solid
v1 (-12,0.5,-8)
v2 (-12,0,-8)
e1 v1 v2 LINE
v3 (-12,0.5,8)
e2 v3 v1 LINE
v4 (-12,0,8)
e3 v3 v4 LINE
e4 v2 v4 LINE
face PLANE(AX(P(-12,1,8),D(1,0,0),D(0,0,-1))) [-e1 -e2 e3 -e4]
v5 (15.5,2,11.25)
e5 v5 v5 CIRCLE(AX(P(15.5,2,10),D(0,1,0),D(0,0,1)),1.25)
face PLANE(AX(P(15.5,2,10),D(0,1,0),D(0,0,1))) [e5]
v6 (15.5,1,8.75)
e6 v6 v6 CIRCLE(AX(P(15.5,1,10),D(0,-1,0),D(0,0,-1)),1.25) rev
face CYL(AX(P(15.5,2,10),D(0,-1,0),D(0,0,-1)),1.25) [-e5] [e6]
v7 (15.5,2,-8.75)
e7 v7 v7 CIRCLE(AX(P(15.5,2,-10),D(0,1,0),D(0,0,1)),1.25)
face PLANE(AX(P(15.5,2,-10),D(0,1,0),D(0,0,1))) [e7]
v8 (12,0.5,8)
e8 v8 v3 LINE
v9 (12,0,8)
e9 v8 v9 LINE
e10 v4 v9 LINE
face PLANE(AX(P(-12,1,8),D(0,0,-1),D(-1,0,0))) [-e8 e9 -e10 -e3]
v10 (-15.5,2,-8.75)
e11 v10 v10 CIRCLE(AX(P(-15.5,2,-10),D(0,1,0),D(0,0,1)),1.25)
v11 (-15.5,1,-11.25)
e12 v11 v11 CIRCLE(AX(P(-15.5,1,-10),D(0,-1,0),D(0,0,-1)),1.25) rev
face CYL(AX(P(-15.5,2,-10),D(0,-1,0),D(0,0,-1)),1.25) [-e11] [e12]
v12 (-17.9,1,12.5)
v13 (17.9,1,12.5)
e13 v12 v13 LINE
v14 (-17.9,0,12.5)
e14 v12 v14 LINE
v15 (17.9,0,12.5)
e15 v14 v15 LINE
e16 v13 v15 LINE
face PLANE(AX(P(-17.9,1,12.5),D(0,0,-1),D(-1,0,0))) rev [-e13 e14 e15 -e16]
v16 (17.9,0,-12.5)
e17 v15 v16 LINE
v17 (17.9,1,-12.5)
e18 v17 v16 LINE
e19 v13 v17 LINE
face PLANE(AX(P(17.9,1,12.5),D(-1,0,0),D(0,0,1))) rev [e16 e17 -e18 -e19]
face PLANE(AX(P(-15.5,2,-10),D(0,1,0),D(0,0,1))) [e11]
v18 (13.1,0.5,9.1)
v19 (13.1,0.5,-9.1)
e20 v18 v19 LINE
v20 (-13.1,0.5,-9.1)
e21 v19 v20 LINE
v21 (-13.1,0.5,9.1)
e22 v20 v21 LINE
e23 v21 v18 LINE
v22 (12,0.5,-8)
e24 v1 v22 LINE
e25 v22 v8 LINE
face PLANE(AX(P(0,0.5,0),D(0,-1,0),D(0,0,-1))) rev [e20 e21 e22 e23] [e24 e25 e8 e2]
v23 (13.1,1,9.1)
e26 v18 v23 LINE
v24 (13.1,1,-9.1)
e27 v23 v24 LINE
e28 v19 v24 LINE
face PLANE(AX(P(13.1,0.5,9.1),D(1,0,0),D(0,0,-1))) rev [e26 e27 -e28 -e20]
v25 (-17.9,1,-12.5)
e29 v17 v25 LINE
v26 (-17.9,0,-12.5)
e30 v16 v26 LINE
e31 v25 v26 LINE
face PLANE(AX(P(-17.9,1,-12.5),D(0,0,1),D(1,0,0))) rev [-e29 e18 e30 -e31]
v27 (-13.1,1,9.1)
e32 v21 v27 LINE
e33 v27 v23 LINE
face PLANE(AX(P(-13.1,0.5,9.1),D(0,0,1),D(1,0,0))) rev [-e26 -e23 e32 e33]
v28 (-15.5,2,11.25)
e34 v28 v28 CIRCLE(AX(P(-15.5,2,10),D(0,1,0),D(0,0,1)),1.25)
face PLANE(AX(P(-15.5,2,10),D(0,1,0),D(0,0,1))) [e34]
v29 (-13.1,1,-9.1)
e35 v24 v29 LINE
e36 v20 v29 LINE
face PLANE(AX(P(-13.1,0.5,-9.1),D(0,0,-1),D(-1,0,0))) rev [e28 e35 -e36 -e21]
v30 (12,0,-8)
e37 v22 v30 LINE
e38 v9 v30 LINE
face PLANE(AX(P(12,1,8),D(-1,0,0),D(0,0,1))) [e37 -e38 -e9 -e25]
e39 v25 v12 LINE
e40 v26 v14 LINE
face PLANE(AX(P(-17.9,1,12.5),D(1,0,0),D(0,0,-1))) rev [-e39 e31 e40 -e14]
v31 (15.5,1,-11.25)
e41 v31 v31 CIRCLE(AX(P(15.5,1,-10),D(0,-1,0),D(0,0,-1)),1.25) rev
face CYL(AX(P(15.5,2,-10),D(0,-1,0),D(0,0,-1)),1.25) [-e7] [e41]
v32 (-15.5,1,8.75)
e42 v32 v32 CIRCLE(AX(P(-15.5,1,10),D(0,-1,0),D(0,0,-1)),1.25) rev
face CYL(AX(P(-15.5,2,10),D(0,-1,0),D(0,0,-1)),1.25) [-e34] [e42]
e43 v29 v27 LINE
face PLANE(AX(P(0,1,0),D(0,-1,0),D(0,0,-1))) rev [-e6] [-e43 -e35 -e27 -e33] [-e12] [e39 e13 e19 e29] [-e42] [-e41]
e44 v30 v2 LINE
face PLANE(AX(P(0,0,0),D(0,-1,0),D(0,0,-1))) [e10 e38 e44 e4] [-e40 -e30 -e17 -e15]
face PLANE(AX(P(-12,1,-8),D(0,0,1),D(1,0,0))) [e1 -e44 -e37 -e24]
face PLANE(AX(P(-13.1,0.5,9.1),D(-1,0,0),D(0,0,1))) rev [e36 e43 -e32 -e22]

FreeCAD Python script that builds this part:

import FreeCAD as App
import Part
import Sketcher
from FreeCAD import Vector


def add_polygon(sketch, points):
    """Adds a closed chain of lines whose ends are joined by coincident constraints."""
    first, n = sketch.GeometryCount, len(points)
    for a, b in zip(points, points[1:] + points[:1]):
        sketch.addGeometry(Part.LineSegment(App.Vector(*a, 0), App.Vector(*b, 0)), False)
    for i in range(n):
        sketch.addConstraint(Sketcher.Constraint("Coincident", first + i, 2, first + (i + 1) % n, 1))

doc = App.newDocument("Part")
params = doc.addObject("Spreadsheet::Sheet", "Params")
for row, (alias, value) in enumerate([
    ("sketch1_width", "24 mm"),
    ("sketch1_height", "25 mm"),
    ("sketch1_height2", "16 mm"),
    ("sketch1_width2", "35.8 mm"),
    ("pad1_length", "1 mm"),
    ("sketch2_width", "26.2 mm"),
    ("sketch2_height", "18.2 mm"),
    ("pocket1_length", "0.5 mm"),
    ("sketch3_diameter", "2.5 mm"),
    ("pad2_length", "1 mm"),
], start=1):
    params.set(f"A{row}", alias)
    params.set(f"B{row}", "=" + value)
    params.setAlias(f"B{row}", alias)

body = doc.addObject("PartDesign::Body", "Body")

sketch1 = body.newObject("Sketcher::SketchObject", "Sketch")
sketch1.AttachmentSupport = (doc.getObject("XZ_Plane"), [""])
sketch1.MapMode = "FlatFace"
add_polygon(sketch1, [(-18, -12), (-18, 12), (18, 12), (18, -12)])
add_polygon(sketch1, [(12, 8), (-12, 8), (-12, -8), (12, -8)])
sketch1.addConstraint(Sketcher.Constraint("Vertical", 0))
sketch1.addConstraint(Sketcher.Constraint("Horizontal", 1))
sketch1.addConstraint(Sketcher.Constraint("Vertical", 2))
sketch1.addConstraint(Sketcher.Constraint("Horizontal", 3))
sketch1.addConstraint(Sketcher.Constraint("Horizontal", 4))
sketch1.addConstraint(Sketcher.Constraint("Vertical", 5))
sketch1.addConstraint(Sketcher.Constraint("Horizontal", 6))
sketch1.addConstraint(Sketcher.Constraint("Vertical", 7))
sketch1.addConstraint(Sketcher.Constraint("Symmetric", 0, 2, 2, 2, -1, 1))
sketch1.addConstraint(Sketcher.Constraint("Symmetric", 4, 2, 6, 2, -1, 1))
sketch1.addConstraint(Sketcher.Constraint("DistanceX", 4, 2, 4, 1, 24.0))
sketch1.addConstraint(Sketcher.Constraint("DistanceY", 0, 1, 0, 2, 25.0))
sketch1.addConstraint(Sketcher.Constraint("DistanceY", 5, 2, 5, 1, 16.0))
sketch1.addConstraint(Sketcher.Constraint("DistanceX", 1, 1, 1, 2, 35.8))
sketch1.setExpression("Constraints[18]", "Params.sketch1_width")
sketch1.setExpression("Constraints[19]", "Params.sketch1_height")
sketch1.setExpression("Constraints[20]", "Params.sketch1_height2")
sketch1.setExpression("Constraints[21]", "Params.sketch1_width2")
pad1 = body.newObject("PartDesign::Pad", "Pad")
pad1.Profile = sketch1
pad1.setExpression("Length", "Params.pad1_length")
pad1.Reversed = True

sketch2 = body.newObject("Sketcher::SketchObject", "Sketch001")
sketch2.AttachmentSupport = (doc.getObject("XZ_Plane"), [""])
sketch2.MapMode = "FlatFace"
sketch2.AttachmentOffset = App.Placement(Vector(0, 0, -1), App.Rotation())
add_polygon(sketch2, [(-13, -9), (-13, 9), (13, 9), (13, -9)])
sketch2.addConstraint(Sketcher.Constraint("Vertical", 0))
sketch2.addConstraint(Sketcher.Constraint("Horizontal", 1))
sketch2.addConstraint(Sketcher.Constraint("Vertical", 2))
sketch2.addConstraint(Sketcher.Constraint("Horizontal", 3))
sketch2.addConstraint(Sketcher.Constraint("Symmetric", 0, 2, 2, 2, -1, 1))
sketch2.addConstraint(Sketcher.Constraint("DistanceX", 1, 1, 1, 2, 26.2))
sketch2.addConstraint(Sketcher.Constraint("DistanceY", 0, 1, 0, 2, 18.2))
sketch2.setExpression("Constraints[9]", "Params.sketch2_width")
sketch2.setExpression("Constraints[10]", "Params.sketch2_height")
pocket1 = body.newObject("PartDesign::Pocket", "Pocket")
pocket1.Profile = sketch2
pocket1.setExpression("Length", "Params.pocket1_length")
pocket1.Reversed = True

sketch3 = body.newObject("Sketcher::SketchObject", "Sketch002")
sketch3.AttachmentSupport = (doc.getObject("XZ_Plane"), [""])
sketch3.MapMode = "FlatFace"
sketch3.AttachmentOffset = App.Placement(Vector(0, 0, -1), App.Rotation())
sketch3.addGeometry(Part.Circle(Vector(-15.5, -10, 0), Vector(0, 0, 1), 1.2), False)
sketch3.addGeometry(Part.Circle(Vector(-15.5, 10, 0), Vector(0, 0, 1), 1.2), False)
sketch3.addGeometry(Part.Circle(Vector(15.5, 10, 0), Vector(0, 0, 1), 1.2), False)
sketch3.addGeometry(Part.Circle(Vector(15.5, -10, 0), Vector(0, 0, 1), 1.2), False)
sketch3.addConstraint(Sketcher.Constraint("Equal", 0, 1))
sketch3.addConstraint(Sketcher.Constraint("Equal", 1, 2))
sketch3.addConstraint(Sketcher.Constraint("Equal", 2, 3))
sketch3.addConstraint(Sketcher.Constraint("Symmetric", 0, 3, 2, 3, -1, 1))
sketch3.addConstraint(Sketcher.Constraint("Symmetric", 1, 3, 3, 3, -1, 1))
sketch3.addConstraint(Sketcher.Constraint("Symmetric", 1, 3, 2, 3, -2))
sketch3.addConstraint(Sketcher.Constraint("Diameter", 0, 2.5))
sketch3.addConstraint(Sketcher.Constraint("DistanceY", 0, 3, -1, 1, 10.0))
sketch3.addConstraint(Sketcher.Constraint("DistanceX", 1, 3, 2, 3, 31.0))
sketch3.setExpression("Constraints[6]", "Params.sketch3_diameter")
pad2 = body.newObject("PartDesign::Pad", "Pad001")
pad2.Profile = sketch3
pad2.setExpression("Length", "Params.pad2_length")
pad2.Reversed = True

doc.recompute()
